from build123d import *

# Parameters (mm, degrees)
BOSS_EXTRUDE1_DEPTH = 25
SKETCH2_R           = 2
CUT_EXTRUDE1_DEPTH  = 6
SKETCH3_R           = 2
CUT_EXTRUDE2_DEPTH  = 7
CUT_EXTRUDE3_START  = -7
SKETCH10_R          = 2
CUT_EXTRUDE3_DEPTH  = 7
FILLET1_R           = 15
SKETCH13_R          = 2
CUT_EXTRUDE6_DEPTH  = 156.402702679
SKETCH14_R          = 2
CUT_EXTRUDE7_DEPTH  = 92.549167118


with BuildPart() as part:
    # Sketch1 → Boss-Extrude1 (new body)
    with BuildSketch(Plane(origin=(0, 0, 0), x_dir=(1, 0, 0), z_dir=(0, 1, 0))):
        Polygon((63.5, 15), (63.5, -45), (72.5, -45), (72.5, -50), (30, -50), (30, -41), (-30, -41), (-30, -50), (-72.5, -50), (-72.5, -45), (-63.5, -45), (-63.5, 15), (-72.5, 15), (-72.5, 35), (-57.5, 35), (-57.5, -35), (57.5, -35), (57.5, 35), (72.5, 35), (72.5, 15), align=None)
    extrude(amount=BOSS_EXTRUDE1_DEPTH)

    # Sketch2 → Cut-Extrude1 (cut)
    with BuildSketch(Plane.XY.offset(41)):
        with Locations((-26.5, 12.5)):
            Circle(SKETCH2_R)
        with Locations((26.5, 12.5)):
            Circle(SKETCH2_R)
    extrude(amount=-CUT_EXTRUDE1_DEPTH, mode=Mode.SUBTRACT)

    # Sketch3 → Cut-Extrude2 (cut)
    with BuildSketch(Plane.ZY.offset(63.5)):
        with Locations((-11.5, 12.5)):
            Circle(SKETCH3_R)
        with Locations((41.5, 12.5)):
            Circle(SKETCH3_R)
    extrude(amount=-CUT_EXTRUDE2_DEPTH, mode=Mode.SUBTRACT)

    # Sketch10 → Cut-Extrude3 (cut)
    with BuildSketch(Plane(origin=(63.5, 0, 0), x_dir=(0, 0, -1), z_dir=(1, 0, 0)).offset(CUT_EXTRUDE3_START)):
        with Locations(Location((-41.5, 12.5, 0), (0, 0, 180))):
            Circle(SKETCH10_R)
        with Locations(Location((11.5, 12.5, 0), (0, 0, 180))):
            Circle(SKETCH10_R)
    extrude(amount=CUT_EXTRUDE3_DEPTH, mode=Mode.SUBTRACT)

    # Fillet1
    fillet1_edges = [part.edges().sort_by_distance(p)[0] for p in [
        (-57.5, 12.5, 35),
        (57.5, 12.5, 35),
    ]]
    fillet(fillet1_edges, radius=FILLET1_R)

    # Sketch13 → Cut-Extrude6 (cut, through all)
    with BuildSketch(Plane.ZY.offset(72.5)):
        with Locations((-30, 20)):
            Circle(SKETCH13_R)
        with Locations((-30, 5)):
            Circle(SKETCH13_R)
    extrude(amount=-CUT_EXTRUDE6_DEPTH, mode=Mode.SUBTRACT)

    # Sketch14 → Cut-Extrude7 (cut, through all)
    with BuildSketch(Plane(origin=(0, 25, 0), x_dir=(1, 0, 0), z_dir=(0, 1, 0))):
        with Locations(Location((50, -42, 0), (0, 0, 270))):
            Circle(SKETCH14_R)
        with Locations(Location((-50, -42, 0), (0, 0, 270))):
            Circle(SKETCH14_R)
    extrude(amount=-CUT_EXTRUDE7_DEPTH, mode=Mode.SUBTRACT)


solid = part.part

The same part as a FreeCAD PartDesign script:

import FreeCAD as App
import Part
import Sketcher
from FreeCAD import Vector
Q = App.Units.Quantity


def edges_at(feature, points):
    """Names of the edges that pass closest to the given points."""
    edges = feature.Shape.Edges
    near = lambda p: min(range(len(edges)), key=lambda i: edges[i].distToShape(Part.Vertex(*p))[0])
    return sorted({f"Edge{near(p) + 1}" for p in points})

doc = App.newDocument("Part")
body = doc.addObject("PartDesign::Body", "Body")

# Sketch on XZ plane
sketch1 = doc.addObject("Sketcher::SketchObject", "Sketch")
body.addObject(sketch1)
sketch1.AttachmentSupport = (doc.XZ_Plane, [""])
sketch1.MapMode = "FlatFace"
sketch1.addGeometry(Part.LineSegment(Vector(64, 45, 0), Vector(64, -15, 0)), False)
sketch1.addGeometry(Part.LineSegment(Vector(64, -15, 0), Vector(72, -15, 0)), False)
sketch1.addGeometry(Part.LineSegment(Vector(72, -15, 0), Vector(72, -35, 0)), False)
sketch1.addGeometry(Part.LineSegment(Vector(72, -35, 0), Vector(58, -35, 0)), False)
sketch1.addGeometry(Part.LineSegment(Vector(58, -35, 0), Vector(58, 35, 0)), False)
sketch1.addGeometry(Part.LineSegment(Vector(58, 35, 0), Vector(-58, 35, 0)), False)
sketch1.addGeometry(Part.LineSegment(Vector(-58, 35, 0), Vector(-58, -35, 0)), False)
sketch1.addGeometry(Part.LineSegment(Vector(-58, -35, 0), Vector(-72, -35, 0)), False)
sketch1.addGeometry(Part.LineSegment(Vector(-72, -35, 0), Vector(-72, -15, 0)), False)
sketch1.addGeometry(Part.LineSegment(Vector(-72, -15, 0), Vector(-64, -15, 0)), False)
sketch1.addGeometry(Part.LineSegment(Vector(-64, -15, 0), Vector(-64, 45, 0)), False)
sketch1.addGeometry(Part.LineSegment(Vector(-64, 45, 0), Vector(-72, 45, 0)), False)
sketch1.addGeometry(Part.LineSegment(Vector(-72, 45, 0), Vector(-72, 50, 0)), False)
sketch1.addGeometry(Part.LineSegment(Vector(-72, 50, 0), Vector(-30, 50, 0)), False)
sketch1.addGeometry(Part.LineSegment(Vector(-30, 50, 0), Vector(-30, 41, 0)), False)
sketch1.addGeometry(Part.LineSegment(Vector(-30, 41, 0), Vector(30, 41, 0)), False)
sketch1.addGeometry(Part.LineSegment(Vector(30, 41, 0), Vector(30, 50, 0)), False)
sketch1.addGeometry(Part.LineSegment(Vector(30, 50, 0), Vector(72, 50, 0)), False)
sketch1.addGeometry(Part.LineSegment(Vector(72, 50, 0), Vector(72, 45, 0)), False)
sketch1.addGeometry(Part.LineSegment(Vector(72, 45, 0), Vector(64, 45, 0)), False)
sketch1.addConstraint(Sketcher.Constraint("Coincident", 0, 2, 1, 1))
sketch1.addConstraint(Sketcher.Constraint("Coincident", 1, 2, 2, 1))
sketch1.addConstraint(Sketcher.Constraint("Coincident", 2, 2, 3, 1))
sketch1.addConstraint(Sketcher.Constraint("Coincident", 3, 2, 4, 1))
sketch1.addConstraint(Sketcher.Constraint("Coincident", 4, 2, 5, 1))
sketch1.addConstraint(Sketcher.Constraint("Coincident", 5, 2, 6, 1))
sketch1.addConstraint(Sketcher.Constraint("Coincident", 6, 2, 7, 1))
sketch1.addConstraint(Sketcher.Constraint("Coincident", 7, 2, 8, 1))
sketch1.addConstraint(Sketcher.Constraint("Coincident", 8, 2, 9, 1))
sketch1.addConstraint(Sketcher.Constraint("Coincident", 9, 2, 10, 1))
sketch1.addConstraint(Sketcher.Constraint("Coincident", 10, 2, 11, 1))
sketch1.addConstraint(Sketcher.Constraint("Coincident", 11, 2, 12, 1))
sketch1.addConstraint(Sketcher.Constraint("Coincident", 12, 2, 13, 1))
sketch1.addConstraint(Sketcher.Constraint("Coincident", 13, 2, 14, 1))
sketch1.addConstraint(Sketcher.Constraint("Coincident", 14, 2, 15, 1))
sketch1.addConstraint(Sketcher.Constraint("Coincident", 15, 2, 16, 1))
sketch1.addConstraint(Sketcher.Constraint("Coincident", 16, 2, 17, 1))
sketch1.addConstraint(Sketcher.Constraint("Coincident", 17, 2, 18, 1))
sketch1.addConstraint(Sketcher.Constraint("Coincident", 18, 2, 19, 1))
sketch1.addConstraint(Sketcher.Constraint("Coincident", 19, 2, 0, 1))
sketch1.addConstraint(Sketcher.Constraint("Vertical", 0))
sketch1.addConstraint(Sketcher.Constraint("Horizontal", 1))
sketch1.addConstraint(Sketcher.Constraint("Vertical", 2))
sketch1.addConstraint(Sketcher.Constraint("Horizontal", 3))
sketch1.addConstraint(Sketcher.Constraint("Vertical", 4))
sketch1.addConstraint(Sketcher.Constraint("Horizontal", 5))
sketch1.addConstraint(Sketcher.Constraint("Vertical", 6))
sketch1.addConstraint(Sketcher.Constraint("Horizontal", 7))
sketch1.addConstraint(Sketcher.Constraint("Vertical", 8))
sketch1.addConstraint(Sketcher.Constraint("Horizontal", 9))
sketch1.addConstraint(Sketcher.Constraint("Vertical", 10))
sketch1.addConstraint(Sketcher.Constraint("Horizontal", 11))
sketch1.addConstraint(Sketcher.Constraint("Vertical", 12))
sketch1.addConstraint(Sketcher.Constraint("Horizontal", 13))
sketch1.addConstraint(Sketcher.Constraint("Vertical", 14))
sketch1.addConstraint(Sketcher.Constraint("Horizontal", 15))
sketch1.addConstraint(Sketcher.Constraint("Vertical", 16))
sketch1.addConstraint(Sketcher.Constraint("Horizontal", 17))
sketch1.addConstraint(Sketcher.Constraint("Vertical", 18))
sketch1.addConstraint(Sketcher.Constraint("Horizontal", 19))
sketch1.addConstraint(Sketcher.Constraint("Symmetric", 3, 2, 5, 2, -1, 1))
sketch1.addConstraint(Sketcher.Constraint("Symmetric", 2, 2, 7, 2, -2))
sketch1.addConstraint(Sketcher.Constraint("Symmetric", 0, 2, 9, 2, -2))
sketch1.addConstraint(Sketcher.Constraint("Symmetric", 13, 2, 16, 2, -2))
sketch1.addConstraint(Sketcher.Constraint("Symmetric", 11, 2, 18, 2, -2))
sketch1.addConstraint(Sketcher.Constraint("Vertical", 8, 2, 11, 2))
sketch1.addConstraint(Sketcher.Constraint("Equal", 15, 0))
sketch1.addConstraint(Sketcher.Constraint("Equal", 19, 14))
sketch1.addConstraint(Sketcher.Constraint("DistanceX", 1, 1, 1, 2, Q("9 mm")))
sketch1.addConstraint(Sketcher.Constraint("DistanceX", 3, 2, 3, 1, Q("15 mm")))
sketch1.addConstraint(Sketcher.Constraint("DistanceX", 5, 2, 5, 1, Q("115 mm")))
sketch1.addConstraint(Sketcher.Constraint("DistanceX", 15, 1, 15, 2, Q("60 mm")))
sketch1.addConstraint(Sketcher.Constraint("DistanceY", 2, 2, 2, 1, Q("20 mm")))
sketch1.addConstraint(Sketcher.Constraint("DistanceY", 4, 1, 4, 2, Q("70 mm")))
sketch1.addConstraint(Sketcher.Constraint("DistanceY", 12, 1, 12, 2, Q("5 mm")))
pad1 = doc.addObject("PartDesign::Pad", "Pad")
body.addObject(pad1)
pad1.Profile = sketch1
pad1.Length = 25
pad1.Reversed = True

# Sketch on XY plane
sketch2 = doc.addObject("Sketcher::SketchObject", "Sketch001")
body.addObject(sketch2)
sketch2.AttachmentSupport = (doc.XY_Plane, [""])
sketch2.MapMode = "FlatFace"
sketch2.AttachmentOffset = App.Placement(Vector(0, 0, 41), App.Rotation())
sketch2.addGeometry(Part.Circle(Vector(-26.5, 12.5, 0), Vector(0, 0, 1), 2), False)
sketch2.addGeometry(Part.Circle(Vector(26.5, 12.5, 0), Vector(0, 0, 1), 2), False)
sketch2.addConstraint(Sketcher.Constraint("Equal", 0, 1))
sketch2.addConstraint(Sketcher.Constraint("Symmetric", 0, 3, 1, 3, -2))
sketch2.addConstraint(Sketcher.Constraint("Diameter", 0, Q("4 mm")))
sketch2.addConstraint(Sketcher.Constraint("DistanceX", 0, 3, 1, 3, Q("53 mm")))
sketch2.addConstraint(Sketcher.Constraint("DistanceY", -1, 1, 0, 3, Q("12.5 mm")))
pocket1 = doc.addObject("PartDesign::Pocket", "Pocket")
body.addObject(pocket1)
pocket1.Profile = sketch2
pocket1.Length = 6

# Sketch on YZ plane
sketch3 = doc.addObject("Sketcher::SketchObject", "Sketch002")
body.addObject(sketch3)
sketch3.AttachmentSupport = (doc.YZ_Plane, [""])
sketch3.MapMode = "FlatFace"
sketch3.AttachmentOffset = App.Placement(Vector(0, 0, -63.5), App.Rotation())
sketch3.addGeometry(Part.Circle(Vector(12.5, -11.5, 0), Vector(0, 0, 1), 2), False)
sketch3.addGeometry(Part.Circle(Vector(12.5, 41.5, 0), Vector(0, 0, 1), 2), False)
sketch3.addConstraint(Sketcher.Constraint("Equal", 0, 1))
sketch3.addConstraint(Sketcher.Constraint("Vertical", 0, 3, 1, 3))
sketch3.addConstraint(Sketcher.Constraint("Diameter", 0, Q("4 mm")))
sketch3.addConstraint(Sketcher.Constraint("DistanceY", 0, 3, 1, 3, Q("53 mm")))
sketch3.addConstraint(Sketcher.Constraint("DistanceX", -1, 1, 0, 3, Q("12.5 mm")))
sketch3.addConstraint(Sketcher.Constraint("DistanceY", 0, 3, -1, 1, Q("11.5 mm")))
pocket2 = doc.addObject("PartDesign::Pocket", "Pocket001")
body.addObject(pocket2)
pocket2.Profile = sketch3
pocket2.Length = 7
pocket2.Reversed = True

# Sketch on YZ plane
sketch4 = doc.addObject("Sketcher::SketchObject", "Sketch003")
body.addObject(sketch4)
sketch4.AttachmentSupport = (doc.YZ_Plane, [""])
sketch4.MapMode = "FlatFace"
sketch4.AttachmentOffset = App.Placement(Vector(0, 0, 56.5), App.Rotation())
sketch4.addGeometry(Part.Circle(Vector(12.5, 41.5, 0), Vector(0, 0, 1), 2), False)
sketch4.addGeometry(Part.Circle(Vector(12.5, -11.5, 0), Vector(0, 0, 1), 2), False)
sketch4.addConstraint(Sketcher.Constraint("Equal", 0, 1))
sketch4.addConstraint(Sketcher.Constraint("Vertical", 0, 3, 1, 3))
sketch4.addConstraint(Sketcher.Constraint("Diameter", 0, Q("4 mm")))
sketch4.addConstraint(Sketcher.Constraint("DistanceY", 1, 3, 0, 3, Q("53 mm")))
sketch4.addConstraint(Sketcher.Constraint("DistanceX", -1, 1, 0, 3, Q("12.5 mm")))
sketch4.addConstraint(Sketcher.Constraint("DistanceY", -1, 1, 0, 3, Q("41.5 mm")))
pocket3 = doc.addObject("PartDesign::Pocket", "Pocket002")
body.addObject(pocket3)
pocket3.Profile = sketch4
pocket3.Length = 7
pocket3.Reversed = True
doc.recompute()

fillet = doc.addObject("PartDesign::Fillet", "Fillet")
body.addObject(fillet)
fillet.Base = (pocket3, edges_at(pocket3, [(-57.5, 12.5, 35), (57.5, 12.5, 35)]))
fillet.Radius = 15

# Sketch on YZ plane
sketch5 = doc.addObject("Sketcher::SketchObject", "Sketch004")
body.addObject(sketch5)
sketch5.AttachmentSupport = (doc.YZ_Plane, [""])
sketch5.MapMode = "FlatFace"
sketch5.AttachmentOffset = App.Placement(Vector(0, 0, -72.5), App.Rotation())
sketch5.addGeometry(Part.Circle(Vector(20, -30, 0), Vector(0, 0, 1), 2), False)
sketch5.addGeometry(Part.Circle(Vector(5, -30, 0), Vector(0, 0, 1), 2), False)
sketch5.addConstraint(Sketcher.Constraint("Equal", 0, 1))
sketch5.addConstraint(Sketcher.Constraint("Horizontal", 0, 3, 1, 3))
sketch5.addConstraint(Sketcher.Constraint("Diameter", 0, Q("4 mm")))
sketch5.addConstraint(Sketcher.Constraint("DistanceX", -1, 1, 0, 3, Q("20 mm")))
sketch5.addConstraint(Sketcher.Constraint("DistanceY", 0, 3, -1, 1, Q("30 mm")))
sketch5.addConstraint(Sketcher.Constraint("DistanceX", -1, 1, 1, 3, Q("5 mm")))
pocket4 = doc.addObject("PartDesign::Pocket", "Pocket003")
body.addObject(pocket4)
pocket4.Profile = sketch5
pocket4.Type = "ThroughAll"
pocket4.Reversed = True

# Sketch on XZ plane
sketch6 = doc.addObject("Sketcher::SketchObject", "Sketch005")
body.addObject(sketch6)
sketch6.AttachmentSupport = (doc.XZ_Plane, [""])
sketch6.MapMode = "FlatFace"
sketch6.AttachmentOffset = App.Placement(Vector(0, 0, -25), App.Rotation())
sketch6.addGeometry(Part.Circle(Vector(50, 42, 0), Vector(0, 0, 1), 2), False)
sketch6.addGeometry(Part.Circle(Vector(-50, 42, 0), Vector(0, 0, 1), 2), False)
sketch6.addConstraint(Sketcher.Constraint("Equal", 0, 1))
sketch6.addConstraint(Sketcher.Constraint("Symmetric", 0, 3, 1, 3, -2))
sketch6.addConstraint(Sketcher.Constraint("Diameter", 0, Q("4 mm")))
sketch6.addConstraint(Sketcher.Constraint("DistanceX", -1, 1, 0, 3, Q("50 mm")))
sketch6.addConstraint(Sketcher.Constraint("DistanceY", -1, 1, 0, 3, Q("42 mm")))
pocket5 = doc.addObject("PartDesign::Pocket", "Pocket004")
body.addObject(pocket5)
pocket5.Profile = sketch6
pocket5.Type = "ThroughAll"
pocket5.Reversed = True

doc.recompute()
